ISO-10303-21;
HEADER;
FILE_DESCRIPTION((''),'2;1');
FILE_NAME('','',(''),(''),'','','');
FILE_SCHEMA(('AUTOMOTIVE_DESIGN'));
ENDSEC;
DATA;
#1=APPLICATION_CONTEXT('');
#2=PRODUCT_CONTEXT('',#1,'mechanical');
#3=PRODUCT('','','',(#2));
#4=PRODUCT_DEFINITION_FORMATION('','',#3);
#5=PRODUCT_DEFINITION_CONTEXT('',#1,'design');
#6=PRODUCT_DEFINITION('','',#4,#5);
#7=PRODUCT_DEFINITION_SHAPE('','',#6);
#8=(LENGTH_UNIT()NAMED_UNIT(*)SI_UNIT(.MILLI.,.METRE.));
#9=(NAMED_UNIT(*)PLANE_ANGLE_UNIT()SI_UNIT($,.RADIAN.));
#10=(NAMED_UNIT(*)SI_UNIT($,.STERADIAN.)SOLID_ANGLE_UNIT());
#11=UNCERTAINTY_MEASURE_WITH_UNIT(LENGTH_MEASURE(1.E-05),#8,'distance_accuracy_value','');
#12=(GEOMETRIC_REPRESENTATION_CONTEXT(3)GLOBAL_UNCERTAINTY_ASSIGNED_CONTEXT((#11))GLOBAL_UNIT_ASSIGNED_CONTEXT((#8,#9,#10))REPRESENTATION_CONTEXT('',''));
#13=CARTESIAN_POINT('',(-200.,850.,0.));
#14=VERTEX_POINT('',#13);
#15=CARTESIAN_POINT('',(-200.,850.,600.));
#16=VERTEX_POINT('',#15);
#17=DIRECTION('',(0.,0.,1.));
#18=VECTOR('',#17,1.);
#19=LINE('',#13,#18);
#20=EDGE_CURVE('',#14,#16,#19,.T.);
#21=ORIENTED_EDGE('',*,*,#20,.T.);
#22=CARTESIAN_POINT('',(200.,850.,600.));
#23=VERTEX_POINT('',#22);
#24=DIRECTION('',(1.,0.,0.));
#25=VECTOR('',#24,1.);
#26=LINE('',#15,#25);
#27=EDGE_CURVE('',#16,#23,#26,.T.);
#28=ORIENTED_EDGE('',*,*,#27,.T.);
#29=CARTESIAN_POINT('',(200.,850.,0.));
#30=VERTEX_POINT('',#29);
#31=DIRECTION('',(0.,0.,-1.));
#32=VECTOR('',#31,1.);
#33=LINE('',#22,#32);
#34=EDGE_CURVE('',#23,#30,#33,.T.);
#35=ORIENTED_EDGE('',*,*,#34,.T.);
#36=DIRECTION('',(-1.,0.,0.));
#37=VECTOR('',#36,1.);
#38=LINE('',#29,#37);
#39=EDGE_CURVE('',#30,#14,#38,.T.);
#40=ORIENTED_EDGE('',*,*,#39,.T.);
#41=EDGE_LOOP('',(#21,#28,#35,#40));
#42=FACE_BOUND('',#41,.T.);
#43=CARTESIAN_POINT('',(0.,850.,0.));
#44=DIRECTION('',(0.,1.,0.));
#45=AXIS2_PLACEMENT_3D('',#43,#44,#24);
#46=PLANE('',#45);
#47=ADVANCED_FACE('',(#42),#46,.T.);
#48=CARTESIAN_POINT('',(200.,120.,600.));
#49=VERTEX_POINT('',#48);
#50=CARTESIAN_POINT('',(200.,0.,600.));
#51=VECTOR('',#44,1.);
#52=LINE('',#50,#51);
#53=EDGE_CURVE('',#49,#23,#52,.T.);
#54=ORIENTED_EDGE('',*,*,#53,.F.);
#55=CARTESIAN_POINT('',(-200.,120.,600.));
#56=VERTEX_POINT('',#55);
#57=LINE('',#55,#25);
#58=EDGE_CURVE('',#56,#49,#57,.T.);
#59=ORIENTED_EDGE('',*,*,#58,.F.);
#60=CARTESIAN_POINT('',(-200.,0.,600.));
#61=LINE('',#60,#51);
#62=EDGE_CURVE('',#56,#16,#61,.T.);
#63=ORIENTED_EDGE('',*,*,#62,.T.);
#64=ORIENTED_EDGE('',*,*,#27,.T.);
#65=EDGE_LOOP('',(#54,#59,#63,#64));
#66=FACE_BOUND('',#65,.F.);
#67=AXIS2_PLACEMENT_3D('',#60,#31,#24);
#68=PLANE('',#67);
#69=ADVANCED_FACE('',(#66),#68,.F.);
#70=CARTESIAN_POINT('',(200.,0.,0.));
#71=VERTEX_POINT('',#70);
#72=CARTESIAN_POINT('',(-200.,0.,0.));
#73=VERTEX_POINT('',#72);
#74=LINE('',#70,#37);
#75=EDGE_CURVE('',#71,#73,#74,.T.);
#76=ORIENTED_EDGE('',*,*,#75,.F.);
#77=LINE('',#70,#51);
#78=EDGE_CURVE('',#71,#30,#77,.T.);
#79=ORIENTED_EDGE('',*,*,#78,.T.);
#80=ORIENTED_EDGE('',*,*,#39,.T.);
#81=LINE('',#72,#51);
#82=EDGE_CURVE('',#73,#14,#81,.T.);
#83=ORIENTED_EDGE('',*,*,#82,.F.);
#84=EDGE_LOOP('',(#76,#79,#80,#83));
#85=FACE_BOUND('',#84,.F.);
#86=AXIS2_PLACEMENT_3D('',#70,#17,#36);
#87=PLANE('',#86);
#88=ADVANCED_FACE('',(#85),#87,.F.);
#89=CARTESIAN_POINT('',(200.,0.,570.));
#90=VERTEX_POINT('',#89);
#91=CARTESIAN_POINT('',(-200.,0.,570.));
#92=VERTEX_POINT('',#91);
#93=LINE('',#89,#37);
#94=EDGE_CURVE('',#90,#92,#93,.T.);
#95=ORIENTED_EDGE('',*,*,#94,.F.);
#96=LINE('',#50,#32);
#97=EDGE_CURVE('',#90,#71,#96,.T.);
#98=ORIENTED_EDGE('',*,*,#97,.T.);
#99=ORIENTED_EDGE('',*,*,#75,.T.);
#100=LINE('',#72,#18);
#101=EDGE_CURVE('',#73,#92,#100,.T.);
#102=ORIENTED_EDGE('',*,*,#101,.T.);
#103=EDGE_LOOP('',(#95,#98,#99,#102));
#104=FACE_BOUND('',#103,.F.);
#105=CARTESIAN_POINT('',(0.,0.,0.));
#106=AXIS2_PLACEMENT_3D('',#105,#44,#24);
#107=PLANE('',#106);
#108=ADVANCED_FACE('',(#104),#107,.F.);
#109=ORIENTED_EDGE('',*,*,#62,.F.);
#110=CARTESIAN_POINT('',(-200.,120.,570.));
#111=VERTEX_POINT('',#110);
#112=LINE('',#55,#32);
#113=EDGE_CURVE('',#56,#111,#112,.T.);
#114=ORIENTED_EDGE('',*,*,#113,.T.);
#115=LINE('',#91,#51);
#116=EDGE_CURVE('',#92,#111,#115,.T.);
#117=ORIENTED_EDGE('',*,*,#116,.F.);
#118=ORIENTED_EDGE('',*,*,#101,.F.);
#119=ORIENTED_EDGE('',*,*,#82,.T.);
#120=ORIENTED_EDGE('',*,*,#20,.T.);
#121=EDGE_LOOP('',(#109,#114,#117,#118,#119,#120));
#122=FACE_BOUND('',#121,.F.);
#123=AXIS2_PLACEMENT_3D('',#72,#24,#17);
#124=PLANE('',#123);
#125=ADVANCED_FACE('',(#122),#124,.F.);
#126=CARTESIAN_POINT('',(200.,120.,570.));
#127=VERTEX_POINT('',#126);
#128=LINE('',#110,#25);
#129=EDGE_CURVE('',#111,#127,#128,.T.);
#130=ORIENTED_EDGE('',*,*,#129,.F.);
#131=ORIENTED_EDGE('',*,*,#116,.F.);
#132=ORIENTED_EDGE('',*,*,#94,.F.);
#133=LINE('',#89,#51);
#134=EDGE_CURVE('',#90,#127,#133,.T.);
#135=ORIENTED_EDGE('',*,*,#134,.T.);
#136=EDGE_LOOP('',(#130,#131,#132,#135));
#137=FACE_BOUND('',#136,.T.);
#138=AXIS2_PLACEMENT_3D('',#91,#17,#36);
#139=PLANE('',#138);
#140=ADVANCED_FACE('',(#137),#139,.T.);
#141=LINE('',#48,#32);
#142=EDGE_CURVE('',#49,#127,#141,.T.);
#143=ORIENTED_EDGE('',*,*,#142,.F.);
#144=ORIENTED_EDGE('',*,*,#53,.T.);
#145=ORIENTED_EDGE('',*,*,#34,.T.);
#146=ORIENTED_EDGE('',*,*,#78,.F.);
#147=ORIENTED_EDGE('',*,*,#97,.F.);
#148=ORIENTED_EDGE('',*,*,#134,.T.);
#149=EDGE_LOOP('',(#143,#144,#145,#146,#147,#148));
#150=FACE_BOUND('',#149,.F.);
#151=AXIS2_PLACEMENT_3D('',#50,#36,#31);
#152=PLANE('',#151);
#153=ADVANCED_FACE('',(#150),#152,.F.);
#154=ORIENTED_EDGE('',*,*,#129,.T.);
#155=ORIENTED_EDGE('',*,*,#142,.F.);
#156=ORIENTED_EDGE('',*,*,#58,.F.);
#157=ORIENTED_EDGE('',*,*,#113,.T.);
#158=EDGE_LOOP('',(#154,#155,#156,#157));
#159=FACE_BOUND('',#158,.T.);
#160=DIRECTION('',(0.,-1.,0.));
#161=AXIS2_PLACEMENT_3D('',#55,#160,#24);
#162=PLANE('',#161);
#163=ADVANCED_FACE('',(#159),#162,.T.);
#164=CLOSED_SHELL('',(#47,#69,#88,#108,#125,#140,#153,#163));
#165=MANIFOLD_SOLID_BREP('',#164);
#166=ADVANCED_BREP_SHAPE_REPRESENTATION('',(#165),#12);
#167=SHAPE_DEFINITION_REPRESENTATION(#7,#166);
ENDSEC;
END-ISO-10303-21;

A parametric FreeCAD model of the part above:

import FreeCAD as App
import Part
import Sketcher
from FreeCAD import Vector


def add_polygon(sketch, points):
    """Adds a closed chain of lines whose ends are joined by coincident constraints."""
    first, n = sketch.GeometryCount, len(points)
    for a, b in zip(points, points[1:] + points[:1]):
        sketch.addGeometry(Part.LineSegment(App.Vector(*a, 0), App.Vector(*b, 0)), False)
    for i in range(n):
        sketch.addConstraint(Sketcher.Constraint("Coincident", first + i, 2, first + (i + 1) % n, 1))

doc = App.newDocument("Part")
body = doc.addObject("PartDesign::Body", "Body")

# Sketch on XZ plane
sketch1 = body.newObject("Sketcher::SketchObject", "Sketch")
sketch1.AttachmentSupport = (doc.getObject("XZ_Plane"), [""])
sketch1.MapMode = "FlatFace"
add_polygon(sketch1, [(200, 600), (200, 0), (-200, 0), (-200, 600)])  # lines 0-3
sketch1.addConstraint([
    Sketcher.Constraint("Vertical", 0),
    Sketcher.Constraint("Horizontal", 1),
    Sketcher.Constraint("Vertical", 2),
    Sketcher.Constraint("Horizontal", 3),
    Sketcher.Constraint("Symmetric", 0, 2, 1, 2, -1, 1),
    Sketcher.Constraint("DistanceX", 1, 2, 1, 1, 400.0),
    Sketcher.Constraint("DistanceY", 0, 2, 0, 1, 600.0),
])
pad1 = body.newObject("PartDesign::Pad", "Pad")
pad1.Profile = sketch1
pad1.Length = 850
pad1.Reversed = True

# Sketch on XY plane
sketch2 = body.newObject("Sketcher::SketchObject", "Sketch001")
sketch2.AttachmentSupport = (doc.getObject("XY_Plane"), [""])
sketch2.MapMode = "FlatFace"
sketch2.AttachmentOffset = App.Placement(Vector(0, 0, 600), App.Rotation())
add_polygon(sketch2, [(-200, 0), (200, 0), (200, 120), (-200, 120)])  # lines 0-3
sketch2.addConstraint([
    Sketcher.Constraint("Horizontal", 0),
    Sketcher.Constraint("Vertical", 1),
    Sketcher.Constraint("Horizontal", 2),
    Sketcher.Constraint("Vertical", 3),
    Sketcher.Constraint("Symmetric", 0, 2, 3, 2, -1, 1),
    Sketcher.Constraint("DistanceY", 1, 1, 1, 2, 120.0),
    Sketcher.Constraint("DistanceX", 0, 1, 0, 2, 400.0),
])
pocket1 = body.newObject("PartDesign::Pocket", "Pocket")
pocket1.Profile = sketch2
pocket1.Length = 30

doc.recompute()
